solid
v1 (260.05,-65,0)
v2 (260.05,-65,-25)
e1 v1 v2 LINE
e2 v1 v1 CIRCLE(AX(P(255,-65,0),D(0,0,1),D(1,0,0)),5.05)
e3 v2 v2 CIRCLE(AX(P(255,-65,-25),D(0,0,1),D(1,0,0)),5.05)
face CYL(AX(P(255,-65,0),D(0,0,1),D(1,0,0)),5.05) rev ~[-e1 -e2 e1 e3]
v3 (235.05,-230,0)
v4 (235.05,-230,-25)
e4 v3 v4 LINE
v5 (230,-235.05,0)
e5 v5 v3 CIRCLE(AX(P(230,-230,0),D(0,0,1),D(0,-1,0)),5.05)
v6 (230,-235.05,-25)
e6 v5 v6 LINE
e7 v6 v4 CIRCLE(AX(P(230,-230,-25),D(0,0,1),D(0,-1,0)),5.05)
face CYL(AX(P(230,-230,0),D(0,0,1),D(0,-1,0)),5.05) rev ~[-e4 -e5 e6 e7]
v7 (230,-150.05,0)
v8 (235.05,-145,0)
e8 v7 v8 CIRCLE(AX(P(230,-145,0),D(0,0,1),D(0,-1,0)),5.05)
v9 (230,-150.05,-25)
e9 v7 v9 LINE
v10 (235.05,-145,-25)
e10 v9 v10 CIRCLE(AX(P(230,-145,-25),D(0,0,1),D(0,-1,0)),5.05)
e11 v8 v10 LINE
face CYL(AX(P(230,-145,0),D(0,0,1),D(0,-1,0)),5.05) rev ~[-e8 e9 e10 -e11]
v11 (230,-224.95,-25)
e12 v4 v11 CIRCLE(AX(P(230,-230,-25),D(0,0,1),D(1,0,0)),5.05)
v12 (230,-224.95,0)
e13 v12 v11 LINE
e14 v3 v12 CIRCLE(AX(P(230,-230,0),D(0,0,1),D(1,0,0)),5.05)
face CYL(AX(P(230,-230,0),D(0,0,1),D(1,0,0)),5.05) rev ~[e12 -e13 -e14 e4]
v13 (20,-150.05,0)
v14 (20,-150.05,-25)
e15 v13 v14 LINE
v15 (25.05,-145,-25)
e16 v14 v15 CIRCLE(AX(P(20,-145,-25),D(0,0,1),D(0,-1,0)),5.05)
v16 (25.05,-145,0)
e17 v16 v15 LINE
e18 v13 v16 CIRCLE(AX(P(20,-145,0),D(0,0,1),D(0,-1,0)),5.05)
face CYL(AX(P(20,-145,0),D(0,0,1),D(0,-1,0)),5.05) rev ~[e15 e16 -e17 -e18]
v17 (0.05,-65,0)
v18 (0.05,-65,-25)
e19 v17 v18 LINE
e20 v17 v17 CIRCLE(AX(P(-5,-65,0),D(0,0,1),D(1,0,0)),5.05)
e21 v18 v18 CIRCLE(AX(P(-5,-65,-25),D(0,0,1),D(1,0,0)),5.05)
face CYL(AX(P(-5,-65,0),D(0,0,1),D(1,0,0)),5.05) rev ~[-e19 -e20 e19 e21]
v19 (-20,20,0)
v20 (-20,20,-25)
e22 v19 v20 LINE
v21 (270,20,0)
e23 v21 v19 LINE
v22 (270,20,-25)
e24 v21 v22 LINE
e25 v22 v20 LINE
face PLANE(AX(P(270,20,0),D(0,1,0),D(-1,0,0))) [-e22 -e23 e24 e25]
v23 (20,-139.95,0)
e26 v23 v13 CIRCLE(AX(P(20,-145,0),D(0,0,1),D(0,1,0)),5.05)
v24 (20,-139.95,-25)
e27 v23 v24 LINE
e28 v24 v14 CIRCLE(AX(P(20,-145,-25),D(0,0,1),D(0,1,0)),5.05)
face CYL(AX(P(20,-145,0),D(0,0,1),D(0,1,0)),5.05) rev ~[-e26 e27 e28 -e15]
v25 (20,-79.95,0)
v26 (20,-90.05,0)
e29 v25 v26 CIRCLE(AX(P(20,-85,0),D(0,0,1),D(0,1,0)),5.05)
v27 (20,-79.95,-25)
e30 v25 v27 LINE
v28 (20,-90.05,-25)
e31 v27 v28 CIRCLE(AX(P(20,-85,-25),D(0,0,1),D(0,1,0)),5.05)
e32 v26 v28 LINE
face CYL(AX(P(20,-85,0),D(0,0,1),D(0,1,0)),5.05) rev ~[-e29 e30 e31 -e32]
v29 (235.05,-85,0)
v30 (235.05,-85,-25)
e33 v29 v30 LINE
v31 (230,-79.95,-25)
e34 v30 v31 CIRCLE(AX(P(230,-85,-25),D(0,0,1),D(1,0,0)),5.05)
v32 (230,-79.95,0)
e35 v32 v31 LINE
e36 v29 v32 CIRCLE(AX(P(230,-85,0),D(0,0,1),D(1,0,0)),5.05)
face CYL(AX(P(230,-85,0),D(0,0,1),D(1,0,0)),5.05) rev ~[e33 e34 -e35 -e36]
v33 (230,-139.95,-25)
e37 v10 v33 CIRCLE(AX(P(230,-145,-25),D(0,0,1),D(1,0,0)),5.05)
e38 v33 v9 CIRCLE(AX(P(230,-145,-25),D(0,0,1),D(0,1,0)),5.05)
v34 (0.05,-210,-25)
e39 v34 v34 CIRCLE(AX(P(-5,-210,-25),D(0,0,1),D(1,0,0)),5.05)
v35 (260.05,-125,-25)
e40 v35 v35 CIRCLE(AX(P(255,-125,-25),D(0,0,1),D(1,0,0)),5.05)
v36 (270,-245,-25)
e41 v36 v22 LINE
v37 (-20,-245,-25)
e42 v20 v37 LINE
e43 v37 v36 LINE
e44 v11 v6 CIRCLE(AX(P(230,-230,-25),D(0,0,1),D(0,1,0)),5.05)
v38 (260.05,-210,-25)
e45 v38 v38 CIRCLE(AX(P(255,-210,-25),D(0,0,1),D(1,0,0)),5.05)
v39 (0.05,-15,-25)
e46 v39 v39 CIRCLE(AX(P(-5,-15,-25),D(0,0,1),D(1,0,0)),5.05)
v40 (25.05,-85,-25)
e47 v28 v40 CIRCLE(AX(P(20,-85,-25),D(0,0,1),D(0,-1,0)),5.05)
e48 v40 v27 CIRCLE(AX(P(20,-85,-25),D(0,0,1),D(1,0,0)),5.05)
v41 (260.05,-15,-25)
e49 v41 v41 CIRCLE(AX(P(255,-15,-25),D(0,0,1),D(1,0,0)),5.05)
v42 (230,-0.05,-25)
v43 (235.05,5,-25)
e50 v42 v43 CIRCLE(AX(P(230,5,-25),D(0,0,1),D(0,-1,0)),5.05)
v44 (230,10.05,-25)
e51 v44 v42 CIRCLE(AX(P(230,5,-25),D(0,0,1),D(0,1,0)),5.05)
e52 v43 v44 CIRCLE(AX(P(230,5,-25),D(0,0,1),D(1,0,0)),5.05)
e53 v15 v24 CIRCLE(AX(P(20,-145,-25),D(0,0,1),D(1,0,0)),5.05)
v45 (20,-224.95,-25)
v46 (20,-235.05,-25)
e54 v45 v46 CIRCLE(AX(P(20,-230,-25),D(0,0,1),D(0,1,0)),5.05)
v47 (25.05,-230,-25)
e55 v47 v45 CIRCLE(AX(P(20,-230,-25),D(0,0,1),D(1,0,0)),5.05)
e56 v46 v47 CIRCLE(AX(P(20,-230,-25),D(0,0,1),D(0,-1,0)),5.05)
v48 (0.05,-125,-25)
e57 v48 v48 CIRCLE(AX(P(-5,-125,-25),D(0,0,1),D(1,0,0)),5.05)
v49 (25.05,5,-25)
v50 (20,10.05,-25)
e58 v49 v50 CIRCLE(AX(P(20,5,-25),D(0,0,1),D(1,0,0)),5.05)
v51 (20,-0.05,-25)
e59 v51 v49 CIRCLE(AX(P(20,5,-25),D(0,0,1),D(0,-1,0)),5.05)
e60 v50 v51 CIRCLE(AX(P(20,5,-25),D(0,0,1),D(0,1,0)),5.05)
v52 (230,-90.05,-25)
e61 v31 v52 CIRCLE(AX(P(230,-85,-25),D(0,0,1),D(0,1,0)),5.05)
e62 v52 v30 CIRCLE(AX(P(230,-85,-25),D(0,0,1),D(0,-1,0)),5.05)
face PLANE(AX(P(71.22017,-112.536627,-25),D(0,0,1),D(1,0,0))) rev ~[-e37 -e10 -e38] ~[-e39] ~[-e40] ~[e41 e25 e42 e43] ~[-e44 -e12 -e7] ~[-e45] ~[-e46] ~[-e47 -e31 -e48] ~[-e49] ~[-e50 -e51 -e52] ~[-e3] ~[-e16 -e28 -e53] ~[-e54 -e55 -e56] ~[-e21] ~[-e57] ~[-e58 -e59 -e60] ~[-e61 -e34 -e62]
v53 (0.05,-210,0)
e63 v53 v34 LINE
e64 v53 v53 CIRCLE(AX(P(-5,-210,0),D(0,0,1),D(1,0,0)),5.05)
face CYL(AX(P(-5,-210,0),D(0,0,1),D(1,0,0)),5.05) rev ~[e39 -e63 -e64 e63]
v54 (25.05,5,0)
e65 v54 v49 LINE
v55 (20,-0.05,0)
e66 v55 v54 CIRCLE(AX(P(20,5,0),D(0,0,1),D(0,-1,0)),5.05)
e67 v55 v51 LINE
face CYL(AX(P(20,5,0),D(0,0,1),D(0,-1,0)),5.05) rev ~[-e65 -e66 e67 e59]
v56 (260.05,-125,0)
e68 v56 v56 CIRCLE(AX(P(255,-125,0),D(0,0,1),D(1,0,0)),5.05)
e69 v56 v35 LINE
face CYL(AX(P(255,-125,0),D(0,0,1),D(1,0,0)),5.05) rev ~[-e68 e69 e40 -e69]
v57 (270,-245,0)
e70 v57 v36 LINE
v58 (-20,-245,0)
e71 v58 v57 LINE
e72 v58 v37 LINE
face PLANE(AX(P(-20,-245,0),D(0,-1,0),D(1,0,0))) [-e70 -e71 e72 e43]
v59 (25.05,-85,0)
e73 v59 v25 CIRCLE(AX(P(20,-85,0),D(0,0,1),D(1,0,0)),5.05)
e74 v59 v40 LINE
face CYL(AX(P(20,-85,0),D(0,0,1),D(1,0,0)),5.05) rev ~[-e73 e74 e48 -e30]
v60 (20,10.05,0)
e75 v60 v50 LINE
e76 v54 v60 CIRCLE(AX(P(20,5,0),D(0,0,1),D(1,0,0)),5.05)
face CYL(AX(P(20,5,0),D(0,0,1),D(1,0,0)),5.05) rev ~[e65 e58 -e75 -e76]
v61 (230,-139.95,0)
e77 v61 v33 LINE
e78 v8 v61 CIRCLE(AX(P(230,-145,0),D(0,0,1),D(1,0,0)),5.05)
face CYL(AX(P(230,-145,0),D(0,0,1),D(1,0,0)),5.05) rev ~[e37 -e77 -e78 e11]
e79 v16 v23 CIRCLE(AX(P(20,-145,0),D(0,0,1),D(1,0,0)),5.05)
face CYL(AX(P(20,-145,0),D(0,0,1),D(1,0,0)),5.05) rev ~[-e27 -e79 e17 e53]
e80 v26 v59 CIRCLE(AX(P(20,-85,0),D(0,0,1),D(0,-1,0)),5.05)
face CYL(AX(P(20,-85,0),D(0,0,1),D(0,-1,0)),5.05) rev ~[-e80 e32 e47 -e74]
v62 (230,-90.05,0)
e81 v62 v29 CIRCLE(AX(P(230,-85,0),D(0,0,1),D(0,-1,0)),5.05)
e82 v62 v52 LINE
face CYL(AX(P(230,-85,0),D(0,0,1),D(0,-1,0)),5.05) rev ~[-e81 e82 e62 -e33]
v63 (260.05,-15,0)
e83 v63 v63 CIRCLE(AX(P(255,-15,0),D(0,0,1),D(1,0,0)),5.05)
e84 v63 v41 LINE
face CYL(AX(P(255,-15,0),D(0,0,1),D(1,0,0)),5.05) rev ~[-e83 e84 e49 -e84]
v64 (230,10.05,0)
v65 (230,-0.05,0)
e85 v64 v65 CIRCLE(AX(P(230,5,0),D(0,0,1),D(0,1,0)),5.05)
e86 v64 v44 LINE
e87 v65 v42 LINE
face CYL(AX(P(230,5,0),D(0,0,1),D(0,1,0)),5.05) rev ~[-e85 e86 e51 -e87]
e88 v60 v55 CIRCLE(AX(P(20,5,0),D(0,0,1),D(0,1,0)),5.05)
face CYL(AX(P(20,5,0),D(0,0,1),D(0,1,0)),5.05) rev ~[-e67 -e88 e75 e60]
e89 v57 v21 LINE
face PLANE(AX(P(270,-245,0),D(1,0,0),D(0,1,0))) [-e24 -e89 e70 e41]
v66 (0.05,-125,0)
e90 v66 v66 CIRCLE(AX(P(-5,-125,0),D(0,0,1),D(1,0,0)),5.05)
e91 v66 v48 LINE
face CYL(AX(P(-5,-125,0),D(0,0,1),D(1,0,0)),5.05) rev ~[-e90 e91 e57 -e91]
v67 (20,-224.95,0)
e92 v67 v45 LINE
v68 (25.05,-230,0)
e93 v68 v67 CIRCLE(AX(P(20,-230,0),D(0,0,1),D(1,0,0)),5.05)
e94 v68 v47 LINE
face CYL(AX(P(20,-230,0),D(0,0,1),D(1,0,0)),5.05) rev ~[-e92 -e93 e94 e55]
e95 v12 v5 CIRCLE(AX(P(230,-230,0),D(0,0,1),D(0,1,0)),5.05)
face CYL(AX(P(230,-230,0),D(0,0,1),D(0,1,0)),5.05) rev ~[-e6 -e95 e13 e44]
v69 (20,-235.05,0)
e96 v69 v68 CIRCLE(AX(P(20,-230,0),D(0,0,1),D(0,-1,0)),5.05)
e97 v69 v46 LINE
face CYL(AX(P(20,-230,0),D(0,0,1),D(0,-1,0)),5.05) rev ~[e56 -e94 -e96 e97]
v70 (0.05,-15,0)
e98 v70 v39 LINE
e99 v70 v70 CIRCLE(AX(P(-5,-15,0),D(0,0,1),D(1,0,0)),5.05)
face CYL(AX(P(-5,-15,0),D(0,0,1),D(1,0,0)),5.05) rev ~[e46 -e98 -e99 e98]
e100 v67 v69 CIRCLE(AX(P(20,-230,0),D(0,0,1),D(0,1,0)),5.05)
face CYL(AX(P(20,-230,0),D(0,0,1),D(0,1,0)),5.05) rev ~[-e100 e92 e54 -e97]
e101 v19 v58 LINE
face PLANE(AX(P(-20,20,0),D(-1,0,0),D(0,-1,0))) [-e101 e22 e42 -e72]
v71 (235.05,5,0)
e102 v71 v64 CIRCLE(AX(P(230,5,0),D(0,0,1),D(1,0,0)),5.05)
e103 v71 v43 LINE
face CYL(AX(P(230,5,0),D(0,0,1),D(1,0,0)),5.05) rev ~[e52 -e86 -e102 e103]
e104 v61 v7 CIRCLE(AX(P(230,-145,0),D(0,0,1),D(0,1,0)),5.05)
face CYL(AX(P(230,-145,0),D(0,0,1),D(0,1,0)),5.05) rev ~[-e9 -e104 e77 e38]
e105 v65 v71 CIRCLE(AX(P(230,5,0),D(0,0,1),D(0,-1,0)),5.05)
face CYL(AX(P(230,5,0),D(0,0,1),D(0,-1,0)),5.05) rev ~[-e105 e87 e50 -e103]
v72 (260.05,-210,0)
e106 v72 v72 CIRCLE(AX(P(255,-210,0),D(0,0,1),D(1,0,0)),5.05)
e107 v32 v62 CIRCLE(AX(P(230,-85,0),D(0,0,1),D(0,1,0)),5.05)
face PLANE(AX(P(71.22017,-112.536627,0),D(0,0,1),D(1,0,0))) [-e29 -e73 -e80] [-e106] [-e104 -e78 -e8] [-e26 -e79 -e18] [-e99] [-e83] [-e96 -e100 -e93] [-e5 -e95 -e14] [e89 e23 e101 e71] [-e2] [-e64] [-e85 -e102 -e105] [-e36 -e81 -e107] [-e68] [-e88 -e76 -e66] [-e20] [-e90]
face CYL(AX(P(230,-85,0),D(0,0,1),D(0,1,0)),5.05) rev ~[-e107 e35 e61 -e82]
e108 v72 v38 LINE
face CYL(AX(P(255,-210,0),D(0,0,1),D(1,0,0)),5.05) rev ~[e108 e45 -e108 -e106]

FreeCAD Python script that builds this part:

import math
import FreeCAD as App
import Part
import Sketcher
from FreeCAD import Vector

doc = App.newDocument("Part")
body = doc.addObject("PartDesign::Body", "Body")

sketch1 = doc.addObject("Sketcher::SketchObject", "Sketch")
body.addObject(sketch1)
sketch1.AttachmentSupport = (doc.XY_Plane, [""])
sketch1.MapMode = "FlatFace"
sketch1.addGeometry([
    Part.LineSegment(Vector(270, -245, 0), Vector(270, 20, 0)),
    Part.LineSegment(Vector(270, 20, 0), Vector(-20, 20, 0)),
    Part.LineSegment(Vector(-20, 20, 0), Vector(-20, -245, 0)),
    Part.LineSegment(Vector(-20, -245, 0), Vector(270, -245, 0)),
], False)
sketch1.addConstraint([
    Sketcher.Constraint("Coincident", 0, 2, 1, 1),
    Sketcher.Constraint("Coincident", 1, 2, 2, 1),
    Sketcher.Constraint("Coincident", 2, 2, 3, 1),
    Sketcher.Constraint("Coincident", 3, 2, 0, 1),
    Sketcher.Constraint("Vertical", 0),
    Sketcher.Constraint("Horizontal", 1),
    Sketcher.Constraint("Vertical", 2),
    Sketcher.Constraint("Horizontal", 3),
    Sketcher.Constraint("DistanceX", 1, 2, 1, 1, 290.0),
    Sketcher.Constraint("DistanceY", 0, 1, 0, 2, 265.0),
    Sketcher.Constraint("DistanceX", -1, 1, 0, 2, 270.0),
    Sketcher.Constraint("DistanceY", -1, 1, 0, 2, 20.0),
])
pad1 = doc.addObject("PartDesign::Pad", "Pad")
body.addObject(pad1)
pad1.Profile = sketch1
pad1.Length = 25
pad1.Reversed = True

sketch2 = doc.addObject("Sketcher::SketchObject", "Sketch001")
body.addObject(sketch2)
sketch2.AttachmentSupport = (doc.XY_Plane, [""])
sketch2.MapMode = "FlatFace"
sketch2.addGeometry([
    Part.Circle(Vector(-5, -15, 0), Vector(0, 0, 1), 5),
    Part.ArcOfCircle(Part.Circle(Vector(20, 5, 0), Vector(0, 0, 1), 5), math.radians(0), math.radians(90)),
    Part.ArcOfCircle(Part.Circle(Vector(20, 5, 0), Vector(0, 0, 1), 5), math.radians(90), math.radians(270)),
    Part.ArcOfCircle(Part.Circle(Vector(20, 5, 0), Vector(0, 0, 1), 5), math.radians(-90), math.radians(0)),
    Part.Circle(Vector(-5, -65, 0), Vector(0, 0, 1), 5),
    Part.ArcOfCircle(Part.Circle(Vector(20, -85, 0), Vector(0, 0, 1), 5), math.radians(0), math.radians(90)),
    Part.ArcOfCircle(Part.Circle(Vector(20, -85, 0), Vector(0, 0, 1), 5), math.radians(90), math.radians(270)),
    Part.ArcOfCircle(Part.Circle(Vector(20, -85, 0), Vector(0, 0, 1), 5), math.radians(-90), math.radians(0)),
    Part.Circle(Vector(-5, -125, 0), Vector(0, 0, 1), 5),
    Part.ArcOfCircle(Part.Circle(Vector(20, -145, 0), Vector(0, 0, 1), 5), math.radians(-90), math.radians(0)),
    Part.ArcOfCircle(Part.Circle(Vector(20, -145, 0), Vector(0, 0, 1), 5), math.radians(0), math.radians(90)),
    Part.ArcOfCircle(Part.Circle(Vector(20, -145, 0), Vector(0, 0, 1), 5), math.radians(90), math.radians(270)),
    Part.Circle(Vector(-5, -210, 0), Vector(0, 0, 1), 5),
    Part.ArcOfCircle(Part.Circle(Vector(20, -230, 0), Vector(0, 0, 1), 5), math.radians(90), math.radians(270)),
    Part.ArcOfCircle(Part.Circle(Vector(20, -230, 0), Vector(0, 0, 1), 5), math.radians(-90), math.radians(0)),
    Part.ArcOfCircle(Part.Circle(Vector(20, -230, 0), Vector(0, 0, 1), 5), math.radians(0), math.radians(90)),
    Part.ArcOfCircle(Part.Circle(Vector(230, -230, 0), Vector(0, 0, 1), 5), math.radians(90), math.radians(270)),
    Part.ArcOfCircle(Part.Circle(Vector(230, -230, 0), Vector(0, 0, 1), 5), math.radians(-90), math.radians(0)),
    Part.ArcOfCircle(Part.Circle(Vector(230, -230, 0), Vector(0, 0, 1), 5), math.radians(0), math.radians(90)),
    Part.Circle(Vector(255, -210, 0), Vector(0, 0, 1), 5),
    Part.ArcOfCircle(Part.Circle(Vector(230, -145, 0), Vector(0, 0, 1), 5), math.radians(-90), math.radians(0)),
    Part.ArcOfCircle(Part.Circle(Vector(230, -145, 0), Vector(0, 0, 1), 5), math.radians(0), math.radians(90)),
    Part.ArcOfCircle(Part.Circle(Vector(230, -145, 0), Vector(0, 0, 1), 5), math.radians(90), math.radians(270)),
    Part.Circle(Vector(255, -125, 0), Vector(0, 0, 1), 5),
    Part.ArcOfCircle(Part.Circle(Vector(230, -85, 0), Vector(0, 0, 1), 5), math.radians(90), math.radians(270)),
    Part.ArcOfCircle(Part.Circle(Vector(230, -85, 0), Vector(0, 0, 1), 5), math.radians(-90), math.radians(0)),
    Part.ArcOfCircle(Part.Circle(Vector(230, -85, 0), Vector(0, 0, 1), 5), math.radians(0), math.radians(90)),
    Part.Circle(Vector(255, -65, 0), Vector(0, 0, 1), 5),
    Part.ArcOfCircle(Part.Circle(Vector(230, 5, 0), Vector(0, 0, 1), 5), math.radians(0), math.radians(90)),
    Part.ArcOfCircle(Part.Circle(Vector(230, 5, 0), Vector(0, 0, 1), 5), math.radians(90), math.radians(270)),
    Part.ArcOfCircle(Part.Circle(Vector(230, 5, 0), Vector(0, 0, 1), 5), math.radians(-90), math.radians(0)),
    Part.Circle(Vector(255, -15, 0), Vector(0, 0, 1), 5),
], False)
sketch2.addConstraint([
    Sketcher.Constraint("Tangent", 1, 2, 2, 1),
    Sketcher.Constraint("Tangent", 2, 2, 3, 1),
    Sketcher.Constraint("Tangent", 3, 2, 1, 1),
    Sketcher.Constraint("Tangent", 5, 2, 6, 1),
    Sketcher.Constraint("Tangent", 6, 2, 7, 1),
    Sketcher.Constraint("Tangent", 7, 2, 5, 1),
    Sketcher.Constraint("Tangent", 9, 2, 10, 1),
    Sketcher.Constraint("Tangent", 10, 2, 11, 1),
    Sketcher.Constraint("Tangent", 11, 2, 9, 1),
    Sketcher.Constraint("Tangent", 13, 2, 14, 1),
    Sketcher.Constraint("Tangent", 14, 2, 15, 1),
    Sketcher.Constraint("Tangent", 15, 2, 13, 1),
    Sketcher.Constraint("Tangent", 16, 2, 17, 1),
    Sketcher.Constraint("Tangent", 17, 2, 18, 1),
    Sketcher.Constraint("Tangent", 18, 2, 16, 1),
    Sketcher.Constraint("Tangent", 20, 2, 21, 1),
    Sketcher.Constraint("Tangent", 21, 2, 22, 1),
    Sketcher.Constraint("Tangent", 22, 2, 20, 1),
    Sketcher.Constraint("Tangent", 24, 2, 25, 1),
    Sketcher.Constraint("Tangent", 25, 2, 26, 1),
    Sketcher.Constraint("Tangent", 26, 2, 24, 1),
    Sketcher.Constraint("Tangent", 28, 2, 29, 1),
    Sketcher.Constraint("Tangent", 29, 2, 30, 1),
    Sketcher.Constraint("Tangent", 30, 2, 28, 1),
    Sketcher.Constraint("Equal", 0, 1),
    Sketcher.Constraint("Equal", 3, 4),
    Sketcher.Constraint("Equal", 4, 5),
    Sketcher.Constraint("Equal", 7, 8),
    Sketcher.Constraint("Equal", 8, 9),
    Sketcher.Constraint("Equal", 11, 12),
    Sketcher.Constraint("Equal", 12, 13),
    Sketcher.Constraint("Equal", 15, 16),
    Sketcher.Constraint("Equal", 18, 19),
    Sketcher.Constraint("Equal", 19, 20),
    Sketcher.Constraint("Equal", 22, 23),
    Sketcher.Constraint("Equal", 23, 24),
    Sketcher.Constraint("Equal", 26, 27),
    Sketcher.Constraint("Equal", 27, 28),
    Sketcher.Constraint("Equal", 30, 31),
    Sketcher.Constraint("Horizontal", 15, 3, 16, 3),
    Sketcher.Constraint("Horizontal", 12, 3, 19, 3),
    Sketcher.Constraint("Horizontal", 11, 3, 20, 3),
    Sketcher.Constraint("Horizontal", 8, 3, 23, 3),
    Sketcher.Constraint("Horizontal", 7, 3, 24, 3),
    Sketcher.Constraint("Horizontal", 4, 3, 27, 3),
    Sketcher.Constraint("Horizontal", 3, 3, 28, 3),
    Sketcher.Constraint("Horizontal", 0, 3, 31, 3),
    Sketcher.Constraint("Horizontal", 30, 3, 3, 2),
    Sketcher.Constraint("Horizontal", 26, 3, 7, 2),
    Sketcher.Constraint("Horizontal", 22, 3, 9, 2),
    Sketcher.Constraint("Horizontal", 18, 3, 14, 2),
    Sketcher.Constraint("Horizontal", 14, 2, 17, 2),
    Sketcher.Constraint("Horizontal", 9, 2, 20, 2),
    Sketcher.Constraint("Horizontal", 7, 2, 25, 2),
    Sketcher.Constraint("Horizontal", 3, 2, 30, 2),
    Sketcher.Constraint("Vertical", 0, 3, 4, 3),
    Sketcher.Constraint("Vertical", 3, 3, 5, 3),
    Sketcher.Constraint("Vertical", 4, 3, 8, 3),
    Sketcher.Constraint("Vertical", 7, 3, 9, 3),
    Sketcher.Constraint("Vertical", 8, 3, 12, 3),
    Sketcher.Constraint("Vertical", 11, 3, 13, 3),
    Sketcher.Constraint("Vertical", 18, 3, 20, 3),
    Sketcher.Constraint("Vertical", 19, 3, 23, 3),
    Sketcher.Constraint("Vertical", 22, 3, 24, 3),
    Sketcher.Constraint("Vertical", 23, 3, 27, 3),
    Sketcher.Constraint("Vertical", 26, 3, 28, 3),
    Sketcher.Constraint("Vertical", 27, 3, 31, 3),
    Sketcher.Constraint("Vertical", 15, 3, 1, 2),
    Sketcher.Constraint("Vertical", 1, 2, 2, 2),
    Sketcher.Constraint("Vertical", 2, 2, 5, 2),
    Sketcher.Constraint("Vertical", 5, 2, 6, 2),
    Sketcher.Constraint("Vertical", 6, 2, 10, 2),
    Sketcher.Constraint("Vertical", 10, 2, 11, 2),
    Sketcher.Constraint("Vertical", 11, 2, 13, 2),
    Sketcher.Constraint("Vertical", 13, 2, 15, 2),
    Sketcher.Constraint("Vertical", 30, 3, 16, 2),
    Sketcher.Constraint("Vertical", 16, 2, 18, 2),
    Sketcher.Constraint("Vertical", 18, 2, 21, 2),
    Sketcher.Constraint("Vertical", 21, 2, 22, 2),
    Sketcher.Constraint("Vertical", 22, 2, 24, 2),
    Sketcher.Constraint("Vertical", 24, 2, 26, 2),
    Sketcher.Constraint("Vertical", 26, 2, 28, 2),
    Sketcher.Constraint("Vertical", 28, 2, 29, 2),
    Sketcher.Constraint("Diameter", 0, 10.1),
    Sketcher.Constraint("DistanceX", 0, 3, -1, 1, 5.0),
    Sketcher.Constraint("DistanceY", 0, 3, -1, 1, 15.0),
    Sketcher.Constraint("DistanceX", -1, 1, 1, 3, 20.0),
    Sketcher.Constraint("DistanceY", -1, 1, 1, 3, 5.0),
    Sketcher.Constraint("DistanceY", 4, 3, -1, 1, 65.0),
    Sketcher.Constraint("DistanceY", 5, 3, -1, 1, 85.0),
    Sketcher.Constraint("DistanceY", 8, 3, -1, 1, 125.0),
    Sketcher.Constraint("DistanceY", 9, 3, -1, 1, 145.0),
    Sketcher.Constraint("DistanceY", 12, 3, -1, 1, 210.0),
    Sketcher.Constraint("DistanceY", 13, 3, -1, 1, 230.0),
    Sketcher.Constraint("DistanceX", -1, 1, 16, 3, 230.0),
    Sketcher.Constraint("DistanceX", -1, 1, 19, 3, 255.0),
])
pocket1 = doc.addObject("PartDesign::Pocket", "Pocket")
body.addObject(pocket1)
pocket1.Profile = sketch2
pocket1.Length = 25

doc.recompute()
